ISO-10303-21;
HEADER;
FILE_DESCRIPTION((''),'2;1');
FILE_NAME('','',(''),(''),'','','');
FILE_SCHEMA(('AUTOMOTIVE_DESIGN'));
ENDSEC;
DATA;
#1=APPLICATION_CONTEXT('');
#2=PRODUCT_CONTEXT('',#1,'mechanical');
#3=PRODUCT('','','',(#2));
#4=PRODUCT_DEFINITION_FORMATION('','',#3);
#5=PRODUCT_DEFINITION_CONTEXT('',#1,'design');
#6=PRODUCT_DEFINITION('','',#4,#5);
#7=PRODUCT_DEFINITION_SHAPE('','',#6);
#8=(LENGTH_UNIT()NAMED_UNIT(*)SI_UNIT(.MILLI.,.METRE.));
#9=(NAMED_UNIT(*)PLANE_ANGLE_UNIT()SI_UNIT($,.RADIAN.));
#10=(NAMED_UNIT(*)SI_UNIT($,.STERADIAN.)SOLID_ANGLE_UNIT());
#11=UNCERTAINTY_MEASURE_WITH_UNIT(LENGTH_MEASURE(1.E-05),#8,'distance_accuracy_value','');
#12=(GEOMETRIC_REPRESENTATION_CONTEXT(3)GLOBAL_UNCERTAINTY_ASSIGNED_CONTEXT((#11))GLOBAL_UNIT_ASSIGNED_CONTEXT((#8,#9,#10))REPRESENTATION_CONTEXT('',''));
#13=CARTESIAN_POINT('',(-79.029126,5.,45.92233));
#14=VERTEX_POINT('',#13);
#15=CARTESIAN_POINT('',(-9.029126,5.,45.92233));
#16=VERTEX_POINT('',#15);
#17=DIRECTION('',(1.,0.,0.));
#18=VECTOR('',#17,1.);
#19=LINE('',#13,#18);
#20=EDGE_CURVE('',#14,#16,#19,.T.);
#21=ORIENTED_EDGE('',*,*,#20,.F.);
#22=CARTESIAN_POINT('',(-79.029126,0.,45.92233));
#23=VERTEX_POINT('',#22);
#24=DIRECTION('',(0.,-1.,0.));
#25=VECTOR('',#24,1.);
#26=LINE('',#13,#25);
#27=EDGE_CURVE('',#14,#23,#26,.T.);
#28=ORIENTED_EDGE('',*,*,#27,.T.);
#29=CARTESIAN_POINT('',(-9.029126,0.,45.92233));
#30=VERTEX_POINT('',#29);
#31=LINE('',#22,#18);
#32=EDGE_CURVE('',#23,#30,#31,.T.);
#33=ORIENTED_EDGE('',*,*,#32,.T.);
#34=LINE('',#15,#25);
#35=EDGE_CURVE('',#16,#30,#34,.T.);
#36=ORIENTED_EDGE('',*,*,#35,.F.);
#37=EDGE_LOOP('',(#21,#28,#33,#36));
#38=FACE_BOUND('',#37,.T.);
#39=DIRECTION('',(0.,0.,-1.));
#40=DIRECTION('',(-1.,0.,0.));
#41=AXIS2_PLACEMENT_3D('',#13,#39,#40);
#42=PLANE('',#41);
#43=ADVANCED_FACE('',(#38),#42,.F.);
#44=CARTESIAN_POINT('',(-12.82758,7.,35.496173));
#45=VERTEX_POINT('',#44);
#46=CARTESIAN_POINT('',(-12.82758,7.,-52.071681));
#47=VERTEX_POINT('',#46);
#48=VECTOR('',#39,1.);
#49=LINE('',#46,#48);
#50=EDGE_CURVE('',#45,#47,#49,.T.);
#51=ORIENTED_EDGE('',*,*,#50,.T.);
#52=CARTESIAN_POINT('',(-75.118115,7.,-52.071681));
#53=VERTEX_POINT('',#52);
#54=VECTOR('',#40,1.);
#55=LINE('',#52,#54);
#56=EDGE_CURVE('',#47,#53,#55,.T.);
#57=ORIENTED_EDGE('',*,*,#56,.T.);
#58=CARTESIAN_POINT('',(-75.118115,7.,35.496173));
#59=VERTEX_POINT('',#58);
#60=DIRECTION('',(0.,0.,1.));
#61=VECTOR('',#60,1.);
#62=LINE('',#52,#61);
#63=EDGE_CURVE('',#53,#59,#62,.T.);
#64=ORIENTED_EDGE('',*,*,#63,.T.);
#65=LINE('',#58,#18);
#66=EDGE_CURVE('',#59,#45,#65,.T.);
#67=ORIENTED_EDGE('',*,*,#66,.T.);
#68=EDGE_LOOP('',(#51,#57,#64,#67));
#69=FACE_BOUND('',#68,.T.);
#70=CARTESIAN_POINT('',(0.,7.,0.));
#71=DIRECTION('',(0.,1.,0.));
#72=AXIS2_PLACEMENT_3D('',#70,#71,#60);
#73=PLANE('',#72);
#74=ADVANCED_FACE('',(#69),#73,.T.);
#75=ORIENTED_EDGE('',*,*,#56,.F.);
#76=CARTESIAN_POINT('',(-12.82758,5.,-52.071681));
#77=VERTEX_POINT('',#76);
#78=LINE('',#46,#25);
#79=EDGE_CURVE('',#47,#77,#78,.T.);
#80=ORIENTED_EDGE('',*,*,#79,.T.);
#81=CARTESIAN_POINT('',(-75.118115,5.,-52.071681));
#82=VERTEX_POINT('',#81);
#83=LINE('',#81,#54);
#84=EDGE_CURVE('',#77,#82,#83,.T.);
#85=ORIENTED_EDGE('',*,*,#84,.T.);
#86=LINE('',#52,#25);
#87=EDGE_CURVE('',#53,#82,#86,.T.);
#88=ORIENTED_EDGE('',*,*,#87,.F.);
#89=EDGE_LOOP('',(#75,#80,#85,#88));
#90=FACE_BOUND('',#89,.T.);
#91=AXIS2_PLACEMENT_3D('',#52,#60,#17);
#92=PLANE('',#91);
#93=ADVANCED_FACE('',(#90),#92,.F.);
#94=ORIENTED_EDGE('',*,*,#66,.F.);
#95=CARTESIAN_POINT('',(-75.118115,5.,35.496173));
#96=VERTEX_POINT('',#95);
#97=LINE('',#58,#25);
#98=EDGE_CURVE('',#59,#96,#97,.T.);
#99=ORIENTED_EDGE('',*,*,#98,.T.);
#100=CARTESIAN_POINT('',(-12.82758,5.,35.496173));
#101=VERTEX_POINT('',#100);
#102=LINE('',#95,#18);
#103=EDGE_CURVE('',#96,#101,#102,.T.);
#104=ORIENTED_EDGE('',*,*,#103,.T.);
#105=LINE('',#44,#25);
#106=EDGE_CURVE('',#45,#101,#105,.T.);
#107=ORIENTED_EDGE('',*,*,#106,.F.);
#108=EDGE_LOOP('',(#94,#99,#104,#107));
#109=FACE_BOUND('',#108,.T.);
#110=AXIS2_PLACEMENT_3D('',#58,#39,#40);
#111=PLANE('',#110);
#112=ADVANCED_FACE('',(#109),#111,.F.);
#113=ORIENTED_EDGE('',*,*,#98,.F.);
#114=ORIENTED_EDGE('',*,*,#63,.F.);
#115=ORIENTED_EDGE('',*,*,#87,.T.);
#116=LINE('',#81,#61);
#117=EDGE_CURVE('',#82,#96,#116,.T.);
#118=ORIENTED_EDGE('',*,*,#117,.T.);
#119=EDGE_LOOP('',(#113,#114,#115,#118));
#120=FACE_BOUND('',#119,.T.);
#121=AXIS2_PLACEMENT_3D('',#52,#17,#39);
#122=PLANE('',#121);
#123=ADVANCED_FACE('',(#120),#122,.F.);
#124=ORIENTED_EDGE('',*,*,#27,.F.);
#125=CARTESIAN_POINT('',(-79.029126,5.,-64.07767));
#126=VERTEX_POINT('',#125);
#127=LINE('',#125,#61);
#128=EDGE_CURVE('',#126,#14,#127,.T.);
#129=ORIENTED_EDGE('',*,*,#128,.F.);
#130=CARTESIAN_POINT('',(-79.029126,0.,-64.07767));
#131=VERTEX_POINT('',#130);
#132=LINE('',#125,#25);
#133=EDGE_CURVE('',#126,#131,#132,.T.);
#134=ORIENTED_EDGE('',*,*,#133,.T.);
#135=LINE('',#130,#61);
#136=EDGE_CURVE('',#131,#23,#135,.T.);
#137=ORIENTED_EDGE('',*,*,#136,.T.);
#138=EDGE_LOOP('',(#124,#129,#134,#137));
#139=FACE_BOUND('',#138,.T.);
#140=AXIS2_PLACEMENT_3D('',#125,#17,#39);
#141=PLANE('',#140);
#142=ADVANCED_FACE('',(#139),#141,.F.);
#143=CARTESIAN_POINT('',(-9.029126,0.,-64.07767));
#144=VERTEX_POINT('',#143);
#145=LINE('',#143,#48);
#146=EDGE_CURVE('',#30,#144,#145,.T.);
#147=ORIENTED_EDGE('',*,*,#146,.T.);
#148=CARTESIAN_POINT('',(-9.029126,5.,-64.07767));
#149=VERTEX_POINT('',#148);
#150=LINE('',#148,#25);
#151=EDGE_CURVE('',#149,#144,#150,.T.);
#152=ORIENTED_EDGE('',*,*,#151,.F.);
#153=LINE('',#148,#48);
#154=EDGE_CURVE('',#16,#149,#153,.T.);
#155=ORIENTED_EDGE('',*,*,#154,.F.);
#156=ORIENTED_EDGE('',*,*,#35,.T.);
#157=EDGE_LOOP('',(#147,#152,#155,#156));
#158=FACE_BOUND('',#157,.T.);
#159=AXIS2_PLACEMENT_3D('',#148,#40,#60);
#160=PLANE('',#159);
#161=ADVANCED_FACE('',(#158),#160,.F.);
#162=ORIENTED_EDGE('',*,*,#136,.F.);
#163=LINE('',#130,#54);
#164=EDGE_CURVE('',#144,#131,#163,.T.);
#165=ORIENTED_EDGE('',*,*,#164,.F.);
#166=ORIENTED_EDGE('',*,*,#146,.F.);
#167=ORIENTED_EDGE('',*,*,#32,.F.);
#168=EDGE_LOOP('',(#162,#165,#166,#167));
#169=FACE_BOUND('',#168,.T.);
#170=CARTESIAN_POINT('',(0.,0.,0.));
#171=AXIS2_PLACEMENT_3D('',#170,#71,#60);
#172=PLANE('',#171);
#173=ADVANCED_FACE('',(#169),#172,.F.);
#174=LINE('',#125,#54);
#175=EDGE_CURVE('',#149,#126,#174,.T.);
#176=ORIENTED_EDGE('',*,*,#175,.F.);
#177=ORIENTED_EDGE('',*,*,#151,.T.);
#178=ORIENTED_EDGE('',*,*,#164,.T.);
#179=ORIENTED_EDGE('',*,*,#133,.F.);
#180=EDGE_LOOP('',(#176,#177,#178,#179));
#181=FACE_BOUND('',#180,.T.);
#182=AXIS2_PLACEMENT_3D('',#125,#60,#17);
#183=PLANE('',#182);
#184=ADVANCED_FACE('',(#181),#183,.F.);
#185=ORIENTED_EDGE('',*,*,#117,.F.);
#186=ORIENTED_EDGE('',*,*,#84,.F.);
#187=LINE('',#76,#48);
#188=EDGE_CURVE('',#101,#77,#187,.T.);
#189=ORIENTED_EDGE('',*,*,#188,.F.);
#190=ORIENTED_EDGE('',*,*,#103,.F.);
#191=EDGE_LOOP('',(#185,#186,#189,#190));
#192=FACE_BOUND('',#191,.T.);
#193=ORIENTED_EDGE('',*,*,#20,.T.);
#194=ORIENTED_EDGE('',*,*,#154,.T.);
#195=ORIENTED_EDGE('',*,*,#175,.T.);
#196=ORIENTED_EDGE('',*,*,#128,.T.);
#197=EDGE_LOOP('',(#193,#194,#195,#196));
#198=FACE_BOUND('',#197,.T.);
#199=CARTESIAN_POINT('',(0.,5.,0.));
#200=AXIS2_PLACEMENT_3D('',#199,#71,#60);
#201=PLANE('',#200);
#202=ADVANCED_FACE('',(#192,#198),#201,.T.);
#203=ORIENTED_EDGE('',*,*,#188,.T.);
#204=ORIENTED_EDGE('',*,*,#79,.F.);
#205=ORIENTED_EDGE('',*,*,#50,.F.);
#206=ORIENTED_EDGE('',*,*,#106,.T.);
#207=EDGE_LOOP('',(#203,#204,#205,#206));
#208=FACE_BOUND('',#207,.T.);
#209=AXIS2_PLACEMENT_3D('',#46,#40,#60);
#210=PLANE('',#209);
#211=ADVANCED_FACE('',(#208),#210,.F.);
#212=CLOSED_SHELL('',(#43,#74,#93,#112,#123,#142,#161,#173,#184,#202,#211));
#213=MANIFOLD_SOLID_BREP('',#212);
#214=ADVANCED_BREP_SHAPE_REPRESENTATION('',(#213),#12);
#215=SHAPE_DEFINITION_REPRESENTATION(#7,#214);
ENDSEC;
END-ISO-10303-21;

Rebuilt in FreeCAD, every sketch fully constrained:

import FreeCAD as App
import Part
import Sketcher


def add_polygon(sketch, points):
    """Adds a closed chain of lines whose ends are joined by coincident constraints."""
    first, n = sketch.GeometryCount, len(points)
    for a, b in zip(points, points[1:] + points[:1]):
        sketch.addGeometry(Part.LineSegment(App.Vector(*a, 0), App.Vector(*b, 0)), False)
    for i in range(n):
        sketch.addConstraint(Sketcher.Constraint("Coincident", first + i, 2, first + (i + 1) % n, 1))

doc = App.newDocument("Part")
body = doc.addObject("PartDesign::Body", "Body")

sketch1 = body.newObject("Sketcher::SketchObject", "Sketch")
sketch1.AttachmentSupport = (doc.getObject("XZ_Plane"), [""])
sketch1.MapMode = "FlatFace"
add_polygon(sketch1, [(-79, -64), (-79, 46), (-9, 46), (-9, -64)])
sketch1.addConstraint([
    Sketcher.Constraint("Vertical", 0),
    Sketcher.Constraint("Horizontal", 1),
    Sketcher.Constraint("Vertical", 2),
    Sketcher.Constraint("Horizontal", 3),
    Sketcher.Constraint("DistanceX", 1, 1, 1, 2, 70.0),
    Sketcher.Constraint("DistanceY", 0, 1, 0, 2, 110.0),
    Sketcher.Constraint("DistanceY", -1, 1, 0, 2, 45.92233),
    Sketcher.Constraint("DistanceX", 0, 2, -1, 1, 79.029126),
])
pad1 = body.newObject("PartDesign::Pad", "Pad")
pad1.Profile = sketch1
pad1.Length = 5
pad1.Reversed = True

sketch2 = body.newObject("Sketcher::SketchObject", "Sketch001")
sketch2.AttachmentSupport = (doc.getObject("XZ_Plane"), [""])
sketch2.MapMode = "FlatFace"
sketch2.AttachmentOffset = App.Placement(App.Vector(0, 0, -5), App.Rotation())
add_polygon(sketch2, [(-75, -52), (-75, 35), (-13, 35), (-13, -52)])
sketch2.addConstraint([
    Sketcher.Constraint("Vertical", 0),
    Sketcher.Constraint("Horizontal", 1),
    Sketcher.Constraint("Vertical", 2),
    Sketcher.Constraint("Horizontal", 3),
    Sketcher.Constraint("DistanceX", 1, 1, 1, 2, 62.290536),
    Sketcher.Constraint("DistanceY", 0, 1, 0, 2, 87.567854),
    Sketcher.Constraint("DistanceX", 1, 2, -1, 1, 12.827579),
    Sketcher.Constraint("DistanceY", 2, 2, -1, 1, 52.071681),
])
pad2 = body.newObject("PartDesign::Pad", "Pad001")
pad2.Profile = sketch2
pad2.Length = 2
pad2.Reversed = True

doc.recompute()
